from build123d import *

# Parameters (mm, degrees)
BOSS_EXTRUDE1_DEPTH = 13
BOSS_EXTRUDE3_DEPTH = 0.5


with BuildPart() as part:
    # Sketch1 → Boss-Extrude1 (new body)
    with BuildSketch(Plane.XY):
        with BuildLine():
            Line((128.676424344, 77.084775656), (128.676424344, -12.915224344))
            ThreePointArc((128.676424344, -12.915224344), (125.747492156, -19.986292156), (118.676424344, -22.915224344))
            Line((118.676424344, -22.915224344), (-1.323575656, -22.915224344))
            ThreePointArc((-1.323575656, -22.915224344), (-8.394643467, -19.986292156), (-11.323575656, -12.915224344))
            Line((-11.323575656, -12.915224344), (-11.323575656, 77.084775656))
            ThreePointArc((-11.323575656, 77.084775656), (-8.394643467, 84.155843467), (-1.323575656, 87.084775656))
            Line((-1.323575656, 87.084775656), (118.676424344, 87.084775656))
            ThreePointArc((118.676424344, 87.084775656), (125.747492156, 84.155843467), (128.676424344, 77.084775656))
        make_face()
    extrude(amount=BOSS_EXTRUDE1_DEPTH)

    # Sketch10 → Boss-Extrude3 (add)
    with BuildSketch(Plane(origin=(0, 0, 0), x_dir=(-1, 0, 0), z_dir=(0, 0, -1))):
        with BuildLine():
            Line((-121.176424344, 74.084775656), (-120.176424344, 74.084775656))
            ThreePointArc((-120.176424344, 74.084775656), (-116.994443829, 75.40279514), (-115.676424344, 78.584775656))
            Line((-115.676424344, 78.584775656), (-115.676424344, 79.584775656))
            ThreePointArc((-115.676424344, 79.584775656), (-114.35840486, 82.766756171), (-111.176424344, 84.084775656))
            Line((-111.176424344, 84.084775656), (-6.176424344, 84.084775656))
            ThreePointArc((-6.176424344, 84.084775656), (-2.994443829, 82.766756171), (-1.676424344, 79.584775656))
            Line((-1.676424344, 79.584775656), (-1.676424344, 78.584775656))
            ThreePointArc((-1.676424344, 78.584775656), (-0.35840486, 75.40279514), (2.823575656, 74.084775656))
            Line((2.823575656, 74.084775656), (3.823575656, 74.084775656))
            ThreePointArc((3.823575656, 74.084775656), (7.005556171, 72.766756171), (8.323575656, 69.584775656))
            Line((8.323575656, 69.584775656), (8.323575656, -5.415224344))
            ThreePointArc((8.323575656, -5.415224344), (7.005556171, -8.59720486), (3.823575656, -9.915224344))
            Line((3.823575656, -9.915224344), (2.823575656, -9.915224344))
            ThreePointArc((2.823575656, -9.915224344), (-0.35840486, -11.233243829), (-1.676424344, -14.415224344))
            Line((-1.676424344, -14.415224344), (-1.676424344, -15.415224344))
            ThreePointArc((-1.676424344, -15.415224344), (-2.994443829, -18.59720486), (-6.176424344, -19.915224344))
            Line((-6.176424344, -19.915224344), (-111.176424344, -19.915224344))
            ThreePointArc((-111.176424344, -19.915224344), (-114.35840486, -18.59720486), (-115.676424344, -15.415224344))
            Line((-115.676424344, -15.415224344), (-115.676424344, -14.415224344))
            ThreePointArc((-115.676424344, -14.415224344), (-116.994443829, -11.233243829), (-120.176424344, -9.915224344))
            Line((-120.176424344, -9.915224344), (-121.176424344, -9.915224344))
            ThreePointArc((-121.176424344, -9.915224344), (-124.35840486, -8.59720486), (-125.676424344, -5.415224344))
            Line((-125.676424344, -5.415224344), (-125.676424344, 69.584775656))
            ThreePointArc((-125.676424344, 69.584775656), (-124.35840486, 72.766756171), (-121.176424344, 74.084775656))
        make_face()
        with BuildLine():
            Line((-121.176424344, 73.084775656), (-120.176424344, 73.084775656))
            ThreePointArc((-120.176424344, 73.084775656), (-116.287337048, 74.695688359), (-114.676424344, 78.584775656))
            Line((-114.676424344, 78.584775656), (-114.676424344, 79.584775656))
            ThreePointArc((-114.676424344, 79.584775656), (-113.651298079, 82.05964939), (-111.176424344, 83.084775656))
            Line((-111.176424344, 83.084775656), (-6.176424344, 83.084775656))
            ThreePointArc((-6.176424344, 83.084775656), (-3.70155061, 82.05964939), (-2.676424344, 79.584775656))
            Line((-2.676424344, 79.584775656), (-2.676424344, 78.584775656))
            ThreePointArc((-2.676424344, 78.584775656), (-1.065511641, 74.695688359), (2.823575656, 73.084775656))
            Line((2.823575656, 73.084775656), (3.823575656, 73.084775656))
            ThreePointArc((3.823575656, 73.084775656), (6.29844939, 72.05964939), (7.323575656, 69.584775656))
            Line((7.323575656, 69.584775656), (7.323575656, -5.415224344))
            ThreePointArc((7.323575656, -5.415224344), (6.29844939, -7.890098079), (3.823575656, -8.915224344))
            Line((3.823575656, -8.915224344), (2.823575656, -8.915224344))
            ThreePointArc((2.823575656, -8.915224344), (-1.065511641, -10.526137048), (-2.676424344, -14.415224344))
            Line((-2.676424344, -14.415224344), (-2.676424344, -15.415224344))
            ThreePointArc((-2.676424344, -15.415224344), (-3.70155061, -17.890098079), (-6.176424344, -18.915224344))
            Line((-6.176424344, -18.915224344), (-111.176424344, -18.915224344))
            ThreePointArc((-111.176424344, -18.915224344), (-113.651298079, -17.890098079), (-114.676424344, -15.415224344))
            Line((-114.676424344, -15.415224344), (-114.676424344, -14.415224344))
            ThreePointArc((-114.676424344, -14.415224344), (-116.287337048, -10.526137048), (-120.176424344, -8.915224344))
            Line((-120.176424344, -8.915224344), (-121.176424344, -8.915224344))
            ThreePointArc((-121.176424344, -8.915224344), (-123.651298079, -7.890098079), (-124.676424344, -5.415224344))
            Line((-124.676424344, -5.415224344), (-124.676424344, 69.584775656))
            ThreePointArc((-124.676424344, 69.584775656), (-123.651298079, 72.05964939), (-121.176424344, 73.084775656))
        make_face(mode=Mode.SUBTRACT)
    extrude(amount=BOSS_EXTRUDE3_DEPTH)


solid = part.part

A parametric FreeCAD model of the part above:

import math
import FreeCAD as App
import Part
import Sketcher

doc = App.newDocument("Part")
body = doc.addObject("PartDesign::Body", "Body")

sketch1 = body.newObject("Sketcher::SketchObject", "Sketch")
sketch1.AttachmentSupport = (doc.getObject("XY_Plane"), [""])
sketch1.MapMode = "FlatFace"
sketch1.addGeometry(Part.LineSegment(App.Vector(129, -13, 0), App.Vector(129, 77, 0)), False)
sketch1.addGeometry(Part.ArcOfCircle(Part.Circle(App.Vector(119, 77, 0), App.Vector(0, 0, 1), 10), math.radians(0), math.radians(90)), False)
sketch1.addGeometry(Part.LineSegment(App.Vector(119, 87, 0), App.Vector(-1, 87, 0)), False)
sketch1.addGeometry(Part.ArcOfCircle(Part.Circle(App.Vector(-1, 77, 0), App.Vector(0, 0, 1), 10), math.radians(90), math.radians(180)), False)
sketch1.addGeometry(Part.LineSegment(App.Vector(-11, 77, 0), App.Vector(-11, -13, 0)), False)
sketch1.addGeometry(Part.ArcOfCircle(Part.Circle(App.Vector(-1, -13, 0), App.Vector(0, 0, 1), 10), math.radians(-180), math.radians(-90)), False)
sketch1.addGeometry(Part.LineSegment(App.Vector(-1, -23, 0), App.Vector(119, -23, 0)), False)
sketch1.addGeometry(Part.ArcOfCircle(Part.Circle(App.Vector(119, -13, 0), App.Vector(0, 0, 1), 10), math.radians(-90), math.radians(0)), False)
sketch1.addConstraint(Sketcher.Constraint("Tangent", 0, 2, 1, 1))
sketch1.addConstraint(Sketcher.Constraint("Tangent", 1, 2, 2, 1))
sketch1.addConstraint(Sketcher.Constraint("Tangent", 2, 2, 3, 1))
sketch1.addConstraint(Sketcher.Constraint("Tangent", 3, 2, 4, 1))
sketch1.addConstraint(Sketcher.Constraint("Tangent", 4, 2, 5, 1))
sketch1.addConstraint(Sketcher.Constraint("Tangent", 5, 2, 6, 1))
sketch1.addConstraint(Sketcher.Constraint("Tangent", 6, 2, 7, 1))
sketch1.addConstraint(Sketcher.Constraint("Tangent", 7, 2, 0, 1))
sketch1.addConstraint(Sketcher.Constraint("Vertical", 0))
sketch1.addConstraint(Sketcher.Constraint("Horizontal", 2))
sketch1.addConstraint(Sketcher.Constraint("Vertical", 4))
sketch1.addConstraint(Sketcher.Constraint("Horizontal", 6))
sketch1.addConstraint(Sketcher.Constraint("Equal", 1, 3))
sketch1.addConstraint(Sketcher.Constraint("Equal", 3, 5))
sketch1.addConstraint(Sketcher.Constraint("Equal", 5, 7))
sketch1.addConstraint(Sketcher.Constraint("Radius", 1, 10.0))
sketch1.addConstraint(Sketcher.Constraint("DistanceX", 2, 2, 2, 1, 120.0))
sketch1.addConstraint(Sketcher.Constraint("DistanceY", 0, 1, 0, 2, 90.0))
sketch1.addConstraint(Sketcher.Constraint("DistanceX", -1, 1, 1, 3, 118.676424))
sketch1.addConstraint(Sketcher.Constraint("DistanceY", -1, 1, 1, 3, 77.084776))
pad1 = body.newObject("PartDesign::Pad", "Pad")
pad1.Profile = sketch1
pad1.Length = 13

sketch2 = body.newObject("Sketcher::SketchObject", "Sketch001")
sketch2.AttachmentSupport = (doc.getObject("XY_Plane"), [""])
sketch2.MapMode = "FlatFace"
sketch2.addGeometry(Part.LineSegment(App.Vector(120.2, 74.1, 0), App.Vector(121.2, 74.1, 0)), False)
sketch2.addGeometry(Part.ArcOfCircle(Part.Circle(App.Vector(121.2, 69.6, 0), App.Vector(0, 0, 1), 4.5), math.radians(0), math.radians(90)), False)
sketch2.addGeometry(Part.LineSegment(App.Vector(125.7, 69.6, 0), App.Vector(125.7, -5.4, 0)), False)
sketch2.addGeometry(Part.ArcOfCircle(Part.Circle(App.Vector(121.2, -5.4, 0), App.Vector(0, 0, 1), 4.5), math.radians(-90), math.radians(0)), False)
sketch2.addGeometry(Part.LineSegment(App.Vector(121.2, -9.9, 0), App.Vector(120.2, -9.9, 0)), False)
sketch2.addGeometry(Part.ArcOfCircle(Part.Circle(App.Vector(120.2, -14.4, 0), App.Vector(0, 0, 1), 4.5), math.radians(90), math.radians(180)), False)
sketch2.addGeometry(Part.LineSegment(App.Vector(115.7, -14.4, 0), App.Vector(115.7, -15.4, 0)), False)
sketch2.addGeometry(Part.ArcOfCircle(Part.Circle(App.Vector(111.2, -15.4, 0), App.Vector(0, 0, 1), 4.5), math.radians(-90), math.radians(0)), False)
sketch2.addGeometry(Part.LineSegment(App.Vector(111.2, -19.9, 0), App.Vector(6.2, -19.9, 0)), False)
sketch2.addGeometry(Part.ArcOfCircle(Part.Circle(App.Vector(6.2, -15.4, 0), App.Vector(0, 0, 1), 4.5), math.radians(180), math.radians(270)), False)
sketch2.addGeometry(Part.LineSegment(App.Vector(1.7, -15.4, 0), App.Vector(1.7, -14.4, 0)), False)
sketch2.addGeometry(Part.ArcOfCircle(Part.Circle(App.Vector(-2.8, -14.4, 0), App.Vector(0, 0, 1), 4.5), math.radians(0), math.radians(90)), False)
sketch2.addGeometry(Part.LineSegment(App.Vector(-2.8, -9.9, 0), App.Vector(-3.8, -9.9, 0)), False)
sketch2.addGeometry(Part.ArcOfCircle(Part.Circle(App.Vector(-3.8, -5.4, 0), App.Vector(0, 0, 1), 4.5), math.radians(180), math.radians(270)), False)
sketch2.addGeometry(Part.LineSegment(App.Vector(-8.3, -5.4, 0), App.Vector(-8.3, 69.6, 0)), False)
sketch2.addGeometry(Part.ArcOfCircle(Part.Circle(App.Vector(-3.8, 69.6, 0), App.Vector(0, 0, 1), 4.5), math.radians(90), math.radians(180)), False)
sketch2.addGeometry(Part.LineSegment(App.Vector(-3.8, 74.1, 0), App.Vector(-2.8, 74.1, 0)), False)
sketch2.addGeometry(Part.ArcOfCircle(Part.Circle(App.Vector(-2.8, 78.6, 0), App.Vector(0, 0, 1), 4.5), math.radians(-90), math.radians(0)), False)
sketch2.addGeometry(Part.LineSegment(App.Vector(1.7, 78.6, 0), App.Vector(1.7, 79.6, 0)), False)
sketch2.addGeometry(Part.ArcOfCircle(Part.Circle(App.Vector(6.2, 79.6, 0), App.Vector(0, 0, 1), 4.5), math.radians(90), math.radians(180)), False)
sketch2.addGeometry(Part.LineSegment(App.Vector(6.2, 84.1, 0), App.Vector(111.2, 84.1, 0)), False)
sketch2.addGeometry(Part.ArcOfCircle(Part.Circle(App.Vector(111.2, 79.6, 0), App.Vector(0, 0, 1), 4.5), math.radians(0), math.radians(90)), False)
sketch2.addGeometry(Part.LineSegment(App.Vector(115.7, 79.6, 0), App.Vector(115.7, 78.6, 0)), False)
sketch2.addGeometry(Part.ArcOfCircle(Part.Circle(App.Vector(120.2, 78.6, 0), App.Vector(0, 0, 1), 4.5), math.radians(180), math.radians(270)), False)
sketch2.addGeometry(Part.LineSegment(App.Vector(121.2, 73.1, 0), App.Vector(120.2, 73.1, 0)), False)
sketch2.addGeometry(Part.ArcOfCircle(Part.Circle(App.Vector(120.2, 78.6, 0), App.Vector(0, 0, 1), 5.5), math.radians(180), math.radians(270)), False)
sketch2.addGeometry(Part.LineSegment(App.Vector(114.7, 78.6, 0), App.Vector(114.7, 79.6, 0)), False)
sketch2.addGeometry(Part.ArcOfCircle(Part.Circle(App.Vector(111.2, 79.6, 0), App.Vector(0, 0, 1), 3.5), math.radians(0), math.radians(90)), False)
sketch2.addGeometry(Part.LineSegment(App.Vector(111.2, 83.1, 0), App.Vector(6.2, 83.1, 0)), False)
sketch2.addGeometry(Part.ArcOfCircle(Part.Circle(App.Vector(6.2, 79.6, 0), App.Vector(0, 0, 1), 3.5), math.radians(90), math.radians(180)), False)
sketch2.addGeometry(Part.LineSegment(App.Vector(2.7, 79.6, 0), App.Vector(2.7, 78.6, 0)), False)
sketch2.addGeometry(Part.ArcOfCircle(Part.Circle(App.Vector(-2.8, 78.6, 0), App.Vector(0, 0, 1), 5.5), math.radians(-90), math.radians(0)), False)
sketch2.addGeometry(Part.LineSegment(App.Vector(-2.8, 73.1, 0), App.Vector(-3.8, 73.1, 0)), False)
sketch2.addGeometry(Part.ArcOfCircle(Part.Circle(App.Vector(-3.8, 69.6, 0), App.Vector(0, 0, 1), 3.5), math.radians(90), math.radians(180)), False)
sketch2.addGeometry(Part.LineSegment(App.Vector(-7.3, 69.6, 0), App.Vector(-7.3, -5.4, 0)), False)
sketch2.addGeometry(Part.ArcOfCircle(Part.Circle(App.Vector(-3.8, -5.4, 0), App.Vector(0, 0, 1), 3.5), math.radians(180), math.radians(270)), False)
sketch2.addGeometry(Part.LineSegment(App.Vector(-3.8, -8.9, 0), App.Vector(-2.8, -8.9, 0)), False)
sketch2.addGeometry(Part.ArcOfCircle(Part.Circle(App.Vector(-2.8, -14.4, 0), App.Vector(0, 0, 1), 5.5), math.radians(0), math.radians(90)), False)
sketch2.addGeometry(Part.LineSegment(App.Vector(2.7, -14.4, 0), App.Vector(2.7, -15.4, 0)), False)
sketch2.addGeometry(Part.ArcOfCircle(Part.Circle(App.Vector(6.2, -15.4, 0), App.Vector(0, 0, 1), 3.5), math.radians(180), math.radians(270)), False)
sketch2.addGeometry(Part.LineSegment(App.Vector(6.2, -18.9, 0), App.Vector(111.2, -18.9, 0)), False)
sketch2.addGeometry(Part.ArcOfCircle(Part.Circle(App.Vector(111.2, -15.4, 0), App.Vector(0, 0, 1), 3.5), math.radians(-90), math.radians(0)), False)
sketch2.addGeometry(Part.LineSegment(App.Vector(114.7, -15.4, 0), App.Vector(114.7, -14.4, 0)), False)
sketch2.addGeometry(Part.ArcOfCircle(Part.Circle(App.Vector(120.2, -14.4, 0), App.Vector(0, 0, 1), 5.5), math.radians(90), math.radians(180)), False)
sketch2.addGeometry(Part.LineSegment(App.Vector(120.2, -8.9, 0), App.Vector(121.2, -8.9, 0)), False)
sketch2.addGeometry(Part.ArcOfCircle(Part.Circle(App.Vector(121.2, -5.4, 0), App.Vector(0, 0, 1), 3.5), math.radians(-90), math.radians(0)), False)
sketch2.addGeometry(Part.LineSegment(App.Vector(124.7, -5.4, 0), App.Vector(124.7, 69.6, 0)), False)
sketch2.addGeometry(Part.ArcOfCircle(Part.Circle(App.Vector(121.2, 69.6, 0), App.Vector(0, 0, 1), 3.5), math.radians(0), math.radians(90)), False)
sketch2.addConstraint(Sketcher.Constraint("Tangent", 0, 2, 1, 2))
sketch2.addConstraint(Sketcher.Constraint("Tangent", 1, 1, 2, 1))
sketch2.addConstraint(Sketcher.Constraint("Tangent", 2, 2, 3, 2))
sketch2.addConstraint(Sketcher.Constraint("Tangent", 3, 1, 4, 1))
sketch2.addConstraint(Sketcher.Constraint("Tangent", 4, 2, 5, 1))
sketch2.addConstraint(Sketcher.Constraint("Tangent", 5, 2, 6, 1))
sketch2.addConstraint(Sketcher.Constraint("Tangent", 6, 2, 7, 2))
sketch2.addConstraint(Sketcher.Constraint("Tangent", 7, 1, 8, 1))
sketch2.addConstraint(Sketcher.Constraint("Tangent", 8, 2, 9, 2))
sketch2.addConstraint(Sketcher.Constraint("Tangent", 9, 1, 10, 1))
sketch2.addConstraint(Sketcher.Constraint("Tangent", 10, 2, 11, 1))
sketch2.addConstraint(Sketcher.Constraint("Tangent", 11, 2, 12, 1))
sketch2.addConstraint(Sketcher.Constraint("Tangent", 12, 2, 13, 2))
sketch2.addConstraint(Sketcher.Constraint("Tangent", 13, 1, 14, 1))
sketch2.addConstraint(Sketcher.Constraint("Tangent", 14, 2, 15, 2))
sketch2.addConstraint(Sketcher.Constraint("Tangent", 15, 1, 16, 1))
sketch2.addConstraint(Sketcher.Constraint("Tangent", 16, 2, 17, 1))
sketch2.addConstraint(Sketcher.Constraint("Tangent", 17, 2, 18, 1))
sketch2.addConstraint(Sketcher.Constraint("Tangent", 18, 2, 19, 2))
sketch2.addConstraint(Sketcher.Constraint("Tangent", 19, 1, 20, 1))
sketch2.addConstraint(Sketcher.Constraint("Tangent", 20, 2, 21, 2))
sketch2.addConstraint(Sketcher.Constraint("Tangent", 21, 1, 22, 1))
sketch2.addConstraint(Sketcher.Constraint("Tangent", 22, 2, 23, 1))
sketch2.addConstraint(Sketcher.Constraint("Tangent", 23, 2, 0, 1))
sketch2.addConstraint(Sketcher.Constraint("Tangent", 24, 2, 25, 2))
sketch2.addConstraint(Sketcher.Constraint("Tangent", 25, 1, 26, 1))
sketch2.addConstraint(Sketcher.Constraint("Tangent", 26, 2, 27, 1))
sketch2.addConstraint(Sketcher.Constraint("Tangent", 27, 2, 28, 1))
sketch2.addConstraint(Sketcher.Constraint("Tangent", 28, 2, 29, 1))
sketch2.addConstraint(Sketcher.Constraint("Tangent", 29, 2, 30, 1))
sketch2.addConstraint(Sketcher.Constraint("Tangent", 30, 2, 31, 2))
sketch2.addConstraint(Sketcher.Constraint("Tangent", 31, 1, 32, 1))
sketch2.addConstraint(Sketcher.Constraint("Tangent", 32, 2, 33, 1))
sketch2.addConstraint(Sketcher.Constraint("Tangent", 33, 2, 34, 1))
sketch2.addConstraint(Sketcher.Constraint("Tangent", 34, 2, 35, 1))
sketch2.addConstraint(Sketcher.Constraint("Tangent", 35, 2, 36, 1))
sketch2.addConstraint(Sketcher.Constraint("Tangent", 36, 2, 37, 2))
sketch2.addConstraint(Sketcher.Constraint("Tangent", 37, 1, 38, 1))
sketch2.addConstraint(Sketcher.Constraint("Tangent", 38, 2, 39, 1))
sketch2.addConstraint(Sketcher.Constraint("Tangent", 39, 2, 40, 1))
sketch2.addConstraint(Sketcher.Constraint("Tangent", 40, 2, 41, 1))
sketch2.addConstraint(Sketcher.Constraint("Tangent", 41, 2, 42, 1))
sketch2.addConstraint(Sketcher.Constraint("Tangent", 42, 2, 43, 2))
sketch2.addConstraint(Sketcher.Constraint("Tangent", 43, 1, 44, 1))
sketch2.addConstraint(Sketcher.Constraint("Tangent", 44, 2, 45, 1))
sketch2.addConstraint(Sketcher.Constraint("Tangent", 45, 2, 46, 1))
sketch2.addConstraint(Sketcher.Constraint("Tangent", 46, 2, 47, 1))
sketch2.addConstraint(Sketcher.Constraint("Tangent", 47, 2, 24, 1))
sketch2.addConstraint(Sketcher.Constraint("Horizontal", 0))
sketch2.addConstraint(Sketcher.Constraint("Vertical", 2))
sketch2.addConstraint(Sketcher.Constraint("Horizontal", 4))
sketch2.addConstraint(Sketcher.Constraint("Vertical", 6))
sketch2.addConstraint(Sketcher.Constraint("Horizontal", 8))
sketch2.addConstraint(Sketcher.Constraint("Vertical", 10))
sketch2.addConstraint(Sketcher.Constraint("Horizontal", 12))
sketch2.addConstraint(Sketcher.Constraint("Vertical", 14))
sketch2.addConstraint(Sketcher.Constraint("Horizontal", 16))
sketch2.addConstraint(Sketcher.Constraint("Vertical", 18))
sketch2.addConstraint(Sketcher.Constraint("Horizontal", 20))
sketch2.addConstraint(Sketcher.Constraint("Vertical", 22))
sketch2.addConstraint(Sketcher.Constraint("Horizontal", 24))
sketch2.addConstraint(Sketcher.Constraint("Vertical", 26))
sketch2.addConstraint(Sketcher.Constraint("Horizontal", 28))
sketch2.addConstraint(Sketcher.Constraint("Vertical", 30))
sketch2.addConstraint(Sketcher.Constraint("Horizontal", 32))
sketch2.addConstraint(Sketcher.Constraint("Vertical", 34))
sketch2.addConstraint(Sketcher.Constraint("Horizontal", 36))
sketch2.addConstraint(Sketcher.Constraint("Vertical", 38))
sketch2.addConstraint(Sketcher.Constraint("Horizontal", 40))
sketch2.addConstraint(Sketcher.Constraint("Vertical", 42))
sketch2.addConstraint(Sketcher.Constraint("Horizontal", 44))
sketch2.addConstraint(Sketcher.Constraint("Vertical", 46))
sketch2.addConstraint(Sketcher.Constraint("Coincident", 25, 3, 23, 3))
sketch2.addConstraint(Sketcher.Constraint("Coincident", 27, 3, 21, 3))
sketch2.addConstraint(Sketcher.Constraint("Coincident", 29, 3, 19, 3))
sketch2.addConstraint(Sketcher.Constraint("Coincident", 31, 3, 17, 3))
sketch2.addConstraint(Sketcher.Constraint("Coincident", 33, 3, 15, 3))
sketch2.addConstraint(Sketcher.Constraint("Coincident", 35, 3, 13, 3))
sketch2.addConstraint(Sketcher.Constraint("Coincident", 37, 3, 11, 3))
sketch2.addConstraint(Sketcher.Constraint("Coincident", 39, 3, 9, 3))
sketch2.addConstraint(Sketcher.Constraint("Coincident", 41, 3, 7, 3))
sketch2.addConstraint(Sketcher.Constraint("Coincident", 43, 3, 5, 3))
sketch2.addConstraint(Sketcher.Constraint("Coincident", 45, 3, 3, 3))
sketch2.addConstraint(Sketcher.Constraint("Equal", 1, 3))
sketch2.addConstraint(Sketcher.Constraint("Equal", 3, 5))
sketch2.addConstraint(Sketcher.Constraint("Equal", 5, 7))
sketch2.addConstraint(Sketcher.Constraint("Equal", 7, 9))
sketch2.addConstraint(Sketcher.Constraint("Equal", 9, 11))
sketch2.addConstraint(Sketcher.Constraint("Equal", 11, 13))
sketch2.addConstraint(Sketcher.Constraint("Equal", 13, 15))
sketch2.addConstraint(Sketcher.Constraint("Equal", 15, 17))
sketch2.addConstraint(Sketcher.Constraint("Equal", 17, 19))
sketch2.addConstraint(Sketcher.Constraint("Equal", 19, 21))
sketch2.addConstraint(Sketcher.Constraint("Equal", 21, 23))
sketch2.addConstraint(Sketcher.Constraint("Equal", 45, 47))
sketch2.addConstraint(Sketcher.Constraint("Horizontal", 5, 3, 11, 3))
sketch2.addConstraint(Sketcher.Constraint("Horizontal", 1, 3, 15, 3))
sketch2.addConstraint(Sketcher.Constraint("Vertical", 11, 3, 17, 3))
sketch2.addConstraint(Sketcher.Constraint("Vertical", 7, 3, 21, 3))
sketch2.addConstraint(Sketcher.Constraint("Equal", 4, 12))
sketch2.addConstraint(Sketcher.Constraint("Equal", 44, 6))
sketch2.addConstraint(Sketcher.Constraint("Equal", 10, 18))
sketch2.addConstraint(Sketcher.Constraint("Radius", 1, 4.5))
sketch2.addConstraint(Sketcher.Constraint("Radius", 25, 5.5))
sketch2.addConstraint(Sketcher.Constraint("DistanceX", 0, 1, 0, 2, 1.0))
sketch2.addConstraint(Sketcher.Constraint("DistanceX", 8, 2, 8, 1, 105.0))
sketch2.addConstraint(Sketcher.Constraint("DistanceY", 2, 2, 2, 1, 75.0))
sketch2.addConstraint(Sketcher.Constraint("DistanceX", -1, 1, 1, 3, 121.176424))
sketch2.addConstraint(Sketcher.Constraint("DistanceY", -1, 1, 1, 3, 69.584776))
pad2 = body.newObject("PartDesign::Pad", "Pad001")
pad2.Profile = sketch2
pad2.Length = 0.5
pad2.Reversed = True

doc.recompute()
